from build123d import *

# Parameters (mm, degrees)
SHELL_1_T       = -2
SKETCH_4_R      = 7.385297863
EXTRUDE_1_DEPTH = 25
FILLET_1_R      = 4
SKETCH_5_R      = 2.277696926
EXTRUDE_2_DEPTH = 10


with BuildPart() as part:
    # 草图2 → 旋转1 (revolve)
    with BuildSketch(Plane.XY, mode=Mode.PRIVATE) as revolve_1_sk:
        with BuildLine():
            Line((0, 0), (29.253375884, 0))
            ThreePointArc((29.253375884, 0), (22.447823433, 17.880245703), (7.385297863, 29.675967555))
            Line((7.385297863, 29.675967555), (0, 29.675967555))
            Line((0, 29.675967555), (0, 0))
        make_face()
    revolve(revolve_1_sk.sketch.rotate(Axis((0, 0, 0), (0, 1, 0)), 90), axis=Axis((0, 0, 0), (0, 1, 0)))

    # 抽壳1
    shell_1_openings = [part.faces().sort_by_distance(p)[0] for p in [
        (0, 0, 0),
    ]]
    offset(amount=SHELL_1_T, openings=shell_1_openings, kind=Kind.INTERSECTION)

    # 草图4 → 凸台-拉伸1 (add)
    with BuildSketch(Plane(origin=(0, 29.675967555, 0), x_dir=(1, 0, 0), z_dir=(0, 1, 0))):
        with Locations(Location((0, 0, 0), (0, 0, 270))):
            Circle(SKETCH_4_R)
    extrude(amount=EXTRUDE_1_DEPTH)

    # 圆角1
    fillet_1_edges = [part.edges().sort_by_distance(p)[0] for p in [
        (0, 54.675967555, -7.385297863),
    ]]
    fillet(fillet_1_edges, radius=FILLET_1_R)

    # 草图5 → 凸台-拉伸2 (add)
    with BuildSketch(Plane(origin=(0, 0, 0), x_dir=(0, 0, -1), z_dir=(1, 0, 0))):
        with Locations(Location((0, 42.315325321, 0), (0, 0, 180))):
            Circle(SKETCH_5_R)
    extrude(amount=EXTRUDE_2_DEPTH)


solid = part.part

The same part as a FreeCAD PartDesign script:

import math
import FreeCAD as App
import Part
import Sketcher
from FreeCAD import Vector
Q = App.Units.Quantity


def edges_at(feature, points):
    """Names of the edges that pass closest to the given points."""
    edges = feature.Shape.Edges
    near = lambda p: min(range(len(edges)), key=lambda i: edges[i].distToShape(Part.Vertex(*p))[0])
    return sorted({f"Edge{near(p) + 1}" for p in points})


def faces_at(feature, points):
    """Names of the faces that lie closest to the given points."""
    faces = feature.Shape.Faces
    near = lambda p: min(range(len(faces)), key=lambda i: faces[i].distToShape(Part.Vertex(*p))[0])
    return sorted({f"Face{near(p) + 1}" for p in points})

doc = App.newDocument("Part")
body = doc.addObject("PartDesign::Body", "Body")

sketch1 = body.newObject("Sketcher::SketchObject", "Sketch")
sketch1.AttachmentSupport = (doc.getObject("XY_Plane"), [""])
sketch1.MapMode = "FlatFace"
sketch1.addGeometry(Part.LineSegment(Vector(0, 0, 0), Vector(29, 0, 0)), False)
sketch1.addGeometry(Part.ArcOfCircle(Part.Circle(Vector(-6, -3, 0), Vector(0, 0, 1), 36), math.radians(5), math.radians(67)), False)
sketch1.addGeometry(Part.LineSegment(Vector(7, 30, 0), Vector(0, 30, 0)), False)
sketch1.addGeometry(Part.LineSegment(Vector(0, 30, 0), Vector(0, 0, 0)), False)
sketch1.addConstraint(Sketcher.Constraint("Coincident", 0, 2, 1, 1))
sketch1.addConstraint(Sketcher.Constraint("Coincident", 1, 2, 2, 1))
sketch1.addConstraint(Sketcher.Constraint("Coincident", 2, 2, 3, 1))
sketch1.addConstraint(Sketcher.Constraint("Coincident", 3, 2, 0, 1))
sketch1.addConstraint(Sketcher.Constraint("Horizontal", 0))
sketch1.addConstraint(Sketcher.Constraint("Horizontal", 2))
sketch1.addConstraint(Sketcher.Constraint("Vertical", 3))
sketch1.addConstraint(Sketcher.Constraint("Coincident", 3, 2, -1, 1))
sketch1.addConstraint(Sketcher.Constraint("Radius", 1, Q("35.685964 mm")))
sketch1.addConstraint(Sketcher.Constraint("DistanceX", 0, 1, 0, 2, Q("29.253376 mm")))
sketch1.addConstraint(Sketcher.Constraint("DistanceX", 2, 2, 2, 1, Q("7.385298 mm")))
sketch1.addConstraint(Sketcher.Constraint("DistanceY", 3, 2, 3, 1, Q("29.675968 mm")))
revolution = body.newObject("PartDesign::Revolution", "Revolution")
revolution.Profile = sketch1
revolution.ReferenceAxis = (sketch1, ["V_Axis"])
revolution.Angle = 360
doc.recompute()

thickness = body.newObject("PartDesign::Thickness", "Thickness")
thickness.Base = (revolution, faces_at(revolution, [(0, 0, 0)]))
thickness.Value = 2
thickness.Reversed = True
thickness.Join = "Intersection"

sketch2 = body.newObject("Sketcher::SketchObject", "Sketch001")
sketch2.AttachmentSupport = (doc.getObject("XZ_Plane"), [""])
sketch2.MapMode = "FlatFace"
sketch2.AttachmentOffset = App.Placement(Vector(0, 0, -29.675968), App.Rotation())
sketch2.addGeometry(Part.Circle(Vector(0, 0, 0), Vector(0, 0, 1), 7), False)
sketch2.addConstraint(Sketcher.Constraint("Coincident", 0, 3, -1, 1))
sketch2.addConstraint(Sketcher.Constraint("Diameter", 0, Q("14.770596 mm")))
pad1 = body.newObject("PartDesign::Pad", "Pad")
pad1.Profile = sketch2
pad1.Length = 25
pad1.Reversed = True
doc.recompute()

fillet = body.newObject("PartDesign::Fillet", "Fillet")
fillet.Base = (pad1, edges_at(pad1, [(0, 54.676, -7.385)]))
fillet.Radius = 4

sketch3 = body.newObject("Sketcher::SketchObject", "Sketch002")
sketch3.AttachmentSupport = (doc.getObject("YZ_Plane"), [""])
sketch3.MapMode = "FlatFace"
sketch3.addGeometry(Part.Circle(Vector(42.3, 0, 0), Vector(0, 0, 1), 2.3), False)
sketch3.addConstraint(Sketcher.Constraint("PointOnObject", 0, 3, -1))
sketch3.addConstraint(Sketcher.Constraint("Diameter", 0, Q("4.555394 mm")))
sketch3.addConstraint(Sketcher.Constraint("DistanceX", -1, 1, 0, 3, Q("42.315325 mm")))
pad2 = body.newObject("PartDesign::Pad", "Pad001")
pad2.Profile = sketch3
pad2.Length = 10

doc.recompute()
